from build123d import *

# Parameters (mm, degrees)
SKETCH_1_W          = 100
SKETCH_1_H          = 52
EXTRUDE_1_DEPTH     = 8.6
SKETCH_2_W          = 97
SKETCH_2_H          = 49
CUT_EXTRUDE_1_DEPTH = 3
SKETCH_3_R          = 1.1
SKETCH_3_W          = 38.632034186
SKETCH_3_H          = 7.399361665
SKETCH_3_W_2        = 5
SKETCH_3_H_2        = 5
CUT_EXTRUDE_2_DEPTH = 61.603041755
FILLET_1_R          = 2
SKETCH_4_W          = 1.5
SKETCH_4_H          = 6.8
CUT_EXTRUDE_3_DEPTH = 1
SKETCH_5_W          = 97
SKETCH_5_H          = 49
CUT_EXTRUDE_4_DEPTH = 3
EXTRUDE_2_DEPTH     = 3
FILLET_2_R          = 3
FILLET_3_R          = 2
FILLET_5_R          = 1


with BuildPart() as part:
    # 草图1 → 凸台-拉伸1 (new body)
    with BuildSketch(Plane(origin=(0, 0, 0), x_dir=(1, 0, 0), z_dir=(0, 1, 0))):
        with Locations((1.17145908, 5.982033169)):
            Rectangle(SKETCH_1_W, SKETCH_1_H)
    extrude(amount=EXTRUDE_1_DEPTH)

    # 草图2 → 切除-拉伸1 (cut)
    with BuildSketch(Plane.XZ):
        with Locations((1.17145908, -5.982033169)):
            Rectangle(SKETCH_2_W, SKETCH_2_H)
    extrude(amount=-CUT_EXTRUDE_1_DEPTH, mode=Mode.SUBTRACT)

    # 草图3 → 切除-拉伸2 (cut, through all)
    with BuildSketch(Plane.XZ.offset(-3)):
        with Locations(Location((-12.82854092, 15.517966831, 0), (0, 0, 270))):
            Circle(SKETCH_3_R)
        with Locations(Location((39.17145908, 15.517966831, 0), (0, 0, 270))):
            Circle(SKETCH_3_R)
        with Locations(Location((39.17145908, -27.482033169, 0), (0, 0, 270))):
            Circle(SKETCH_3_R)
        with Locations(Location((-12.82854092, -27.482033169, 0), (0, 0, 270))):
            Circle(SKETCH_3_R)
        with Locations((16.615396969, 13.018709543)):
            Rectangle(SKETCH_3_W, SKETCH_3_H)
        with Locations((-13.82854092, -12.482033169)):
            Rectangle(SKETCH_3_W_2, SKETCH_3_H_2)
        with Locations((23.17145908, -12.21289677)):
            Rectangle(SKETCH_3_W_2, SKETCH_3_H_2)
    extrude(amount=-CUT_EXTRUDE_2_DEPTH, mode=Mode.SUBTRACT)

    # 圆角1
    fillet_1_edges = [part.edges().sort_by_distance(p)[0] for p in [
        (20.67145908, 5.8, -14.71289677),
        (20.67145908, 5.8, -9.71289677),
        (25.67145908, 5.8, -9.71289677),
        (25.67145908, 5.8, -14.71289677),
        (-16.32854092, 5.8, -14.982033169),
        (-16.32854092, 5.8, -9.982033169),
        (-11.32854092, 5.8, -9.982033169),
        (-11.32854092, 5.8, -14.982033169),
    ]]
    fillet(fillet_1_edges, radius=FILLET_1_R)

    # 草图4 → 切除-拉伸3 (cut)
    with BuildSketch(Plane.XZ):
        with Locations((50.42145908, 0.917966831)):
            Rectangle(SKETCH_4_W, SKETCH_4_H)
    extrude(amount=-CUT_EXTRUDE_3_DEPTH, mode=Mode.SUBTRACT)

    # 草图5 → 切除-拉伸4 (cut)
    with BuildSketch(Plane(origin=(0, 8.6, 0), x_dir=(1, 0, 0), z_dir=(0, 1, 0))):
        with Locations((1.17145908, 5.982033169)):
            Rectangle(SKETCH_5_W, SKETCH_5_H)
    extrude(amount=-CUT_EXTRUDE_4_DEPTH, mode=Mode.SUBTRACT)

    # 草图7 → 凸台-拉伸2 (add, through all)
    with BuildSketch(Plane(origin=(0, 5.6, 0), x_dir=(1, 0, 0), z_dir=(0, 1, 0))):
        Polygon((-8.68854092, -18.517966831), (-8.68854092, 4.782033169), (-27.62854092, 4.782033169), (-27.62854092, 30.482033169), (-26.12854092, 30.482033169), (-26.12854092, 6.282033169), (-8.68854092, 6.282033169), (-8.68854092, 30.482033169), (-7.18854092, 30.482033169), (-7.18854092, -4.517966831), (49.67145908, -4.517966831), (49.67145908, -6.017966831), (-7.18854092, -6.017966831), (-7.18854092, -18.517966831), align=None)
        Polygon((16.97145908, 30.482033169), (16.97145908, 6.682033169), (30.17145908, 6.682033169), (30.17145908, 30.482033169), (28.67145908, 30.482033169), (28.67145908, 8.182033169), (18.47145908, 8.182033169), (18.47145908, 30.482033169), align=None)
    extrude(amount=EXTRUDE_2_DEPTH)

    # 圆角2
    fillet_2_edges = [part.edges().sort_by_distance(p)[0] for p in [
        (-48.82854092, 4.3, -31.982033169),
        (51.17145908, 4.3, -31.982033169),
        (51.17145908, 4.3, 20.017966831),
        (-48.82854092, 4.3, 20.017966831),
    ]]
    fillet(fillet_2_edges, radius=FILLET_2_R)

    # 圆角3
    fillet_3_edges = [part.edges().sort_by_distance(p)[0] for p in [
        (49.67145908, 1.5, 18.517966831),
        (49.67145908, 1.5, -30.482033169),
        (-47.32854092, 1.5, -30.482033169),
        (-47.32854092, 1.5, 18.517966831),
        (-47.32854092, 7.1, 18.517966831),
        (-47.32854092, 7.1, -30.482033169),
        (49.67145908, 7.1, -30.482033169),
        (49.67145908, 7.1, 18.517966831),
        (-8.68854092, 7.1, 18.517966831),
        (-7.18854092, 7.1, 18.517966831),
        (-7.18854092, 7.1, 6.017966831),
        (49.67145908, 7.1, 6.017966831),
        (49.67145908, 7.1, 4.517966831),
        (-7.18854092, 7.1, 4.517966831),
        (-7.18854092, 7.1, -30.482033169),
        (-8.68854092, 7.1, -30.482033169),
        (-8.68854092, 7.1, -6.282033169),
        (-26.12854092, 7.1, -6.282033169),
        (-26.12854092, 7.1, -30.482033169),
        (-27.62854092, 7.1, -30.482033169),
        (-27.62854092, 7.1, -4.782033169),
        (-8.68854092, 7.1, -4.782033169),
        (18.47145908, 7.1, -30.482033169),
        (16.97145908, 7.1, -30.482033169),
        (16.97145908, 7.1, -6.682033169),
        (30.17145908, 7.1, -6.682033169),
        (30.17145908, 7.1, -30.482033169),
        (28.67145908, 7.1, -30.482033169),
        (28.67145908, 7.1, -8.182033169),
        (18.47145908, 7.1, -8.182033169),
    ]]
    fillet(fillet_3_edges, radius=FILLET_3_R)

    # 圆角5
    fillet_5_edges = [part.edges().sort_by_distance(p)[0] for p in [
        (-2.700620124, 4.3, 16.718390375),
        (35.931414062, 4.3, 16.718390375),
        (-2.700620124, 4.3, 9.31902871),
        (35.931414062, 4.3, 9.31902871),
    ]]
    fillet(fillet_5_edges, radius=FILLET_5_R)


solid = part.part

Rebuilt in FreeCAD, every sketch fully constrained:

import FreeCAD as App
import Part
import Sketcher

V = App.Vector
Q = App.Units.Quantity


def edges_at(feature, points):
    """Names of the edges that pass closest to the given points."""
    edges = feature.Shape.Edges
    near = lambda p: min(range(len(edges)), key=lambda i: edges[i].distToShape(Part.Vertex(*p))[0])
    return sorted({f"Edge{near(p) + 1}" for p in points})

doc = App.newDocument("Part")
body = doc.addObject("PartDesign::Body", "Body")

sketch1 = doc.addObject("Sketcher::SketchObject", "Sketch")
body.addObject(sketch1)
sketch1.AttachmentSupport = (doc.XZ_Plane, [""])
sketch1.MapMode = "FlatFace"
sketch1.addGeometry(Part.LineSegment(V(-49, -32, 0), V(-49, 20, 0)), False)
sketch1.addGeometry(Part.LineSegment(V(-49, 20, 0), V(51, 20, 0)), False)
sketch1.addGeometry(Part.LineSegment(V(51, 20, 0), V(51, -32, 0)), False)
sketch1.addGeometry(Part.LineSegment(V(51, -32, 0), V(-49, -32, 0)), False)
sketch1.addConstraint(Sketcher.Constraint("Coincident", 0, 2, 1, 1))
sketch1.addConstraint(Sketcher.Constraint("Coincident", 1, 2, 2, 1))
sketch1.addConstraint(Sketcher.Constraint("Coincident", 2, 2, 3, 1))
sketch1.addConstraint(Sketcher.Constraint("Coincident", 3, 2, 0, 1))
sketch1.addConstraint(Sketcher.Constraint("Vertical", 0))
sketch1.addConstraint(Sketcher.Constraint("Horizontal", 1))
sketch1.addConstraint(Sketcher.Constraint("Vertical", 2))
sketch1.addConstraint(Sketcher.Constraint("Horizontal", 3))
sketch1.addConstraint(Sketcher.Constraint("DistanceX", 1, 1, 1, 2, Q("100 mm")))
sketch1.addConstraint(Sketcher.Constraint("DistanceY", 0, 1, 0, 2, Q("52 mm")))
sketch1.addConstraint(Sketcher.Constraint("DistanceX", 0, 2, -1, 1, Q("48.828541 mm")))
sketch1.addConstraint(Sketcher.Constraint("DistanceY", -1, 1, 0, 2, Q("20.017967 mm")))
pad1 = doc.addObject("PartDesign::Pad", "Pad")
body.addObject(pad1)
pad1.Profile = sketch1
pad1.Length = 8.6
pad1.Reversed = True

sketch2 = doc.addObject("Sketcher::SketchObject", "Sketch001")
body.addObject(sketch2)
sketch2.AttachmentSupport = (doc.XZ_Plane, [""])
sketch2.MapMode = "FlatFace"
sketch2.addGeometry(Part.LineSegment(V(-47, 19, 0), V(-47, -30, 0)), False)
sketch2.addGeometry(Part.LineSegment(V(-47, -30, 0), V(50, -30, 0)), False)
sketch2.addGeometry(Part.LineSegment(V(50, -30, 0), V(50, 19, 0)), False)
sketch2.addGeometry(Part.LineSegment(V(50, 19, 0), V(-47, 19, 0)), False)
sketch2.addConstraint(Sketcher.Constraint("Coincident", 0, 2, 1, 1))
sketch2.addConstraint(Sketcher.Constraint("Coincident", 1, 2, 2, 1))
sketch2.addConstraint(Sketcher.Constraint("Coincident", 2, 2, 3, 1))
sketch2.addConstraint(Sketcher.Constraint("Coincident", 3, 2, 0, 1))
sketch2.addConstraint(Sketcher.Constraint("Vertical", 0))
sketch2.addConstraint(Sketcher.Constraint("Horizontal", 1))
sketch2.addConstraint(Sketcher.Constraint("Vertical", 2))
sketch2.addConstraint(Sketcher.Constraint("Horizontal", 3))
sketch2.addConstraint(Sketcher.Constraint("DistanceX", 1, 1, 1, 2, Q("97 mm")))
sketch2.addConstraint(Sketcher.Constraint("DistanceY", 0, 2, 0, 1, Q("49 mm")))
sketch2.addConstraint(Sketcher.Constraint("DistanceX", 0, 2, -1, 1, Q("47.328541 mm")))
sketch2.addConstraint(Sketcher.Constraint("DistanceY", 0, 2, -1, 1, Q("30.482033 mm")))
pocket1 = doc.addObject("PartDesign::Pocket", "Pocket")
body.addObject(pocket1)
pocket1.Profile = sketch2
pocket1.Length = 3

sketch3 = doc.addObject("Sketcher::SketchObject", "Sketch002")
body.addObject(sketch3)
sketch3.AttachmentSupport = (doc.XZ_Plane, [""])
sketch3.MapMode = "FlatFace"
sketch3.AttachmentOffset = App.Placement(V(0, 0, -3), App.Rotation())
sketch3.addGeometry(Part.Circle(V(-12.8, 15.5, 0), V(0, 0, 1), 1.1), False)
sketch3.addGeometry(Part.Circle(V(39.2, 15.5, 0), V(0, 0, 1), 1.1), False)
sketch3.addGeometry(Part.Circle(V(39.2, -27.5, 0), V(0, 0, 1), 1.1), False)
sketch3.addGeometry(Part.Circle(V(-12.8, -27.5, 0), V(0, 0, 1), 1.1), False)
sketch3.addGeometry(Part.LineSegment(V(-2.7, 16.7, 0), V(-2.7, 9.3, 0)), False)
sketch3.addGeometry(Part.LineSegment(V(-2.7, 9.3, 0), V(35.9, 9.3, 0)), False)
sketch3.addGeometry(Part.LineSegment(V(35.9, 9.3, 0), V(35.9, 16.7, 0)), False)
sketch3.addGeometry(Part.LineSegment(V(35.9, 16.7, 0), V(-2.7, 16.7, 0)), False)
sketch3.addGeometry(Part.LineSegment(V(-16.3, -10, 0), V(-16.3, -15, 0)), False)
sketch3.addGeometry(Part.LineSegment(V(-16.3, -15, 0), V(-11.3, -15, 0)), False)
sketch3.addGeometry(Part.LineSegment(V(-11.3, -15, 0), V(-11.3, -10, 0)), False)
sketch3.addGeometry(Part.LineSegment(V(-11.3, -10, 0), V(-16.3, -10, 0)), False)
sketch3.addGeometry(Part.LineSegment(V(20.7, -9.7, 0), V(20.7, -14.7, 0)), False)
sketch3.addGeometry(Part.LineSegment(V(20.7, -14.7, 0), V(25.7, -14.7, 0)), False)
sketch3.addGeometry(Part.LineSegment(V(25.7, -14.7, 0), V(25.7, -9.7, 0)), False)
sketch3.addGeometry(Part.LineSegment(V(25.7, -9.7, 0), V(20.7, -9.7, 0)), False)
sketch3.addConstraint(Sketcher.Constraint("Coincident", 4, 2, 5, 1))
sketch3.addConstraint(Sketcher.Constraint("Coincident", 5, 2, 6, 1))
sketch3.addConstraint(Sketcher.Constraint("Coincident", 6, 2, 7, 1))
sketch3.addConstraint(Sketcher.Constraint("Coincident", 7, 2, 4, 1))
sketch3.addConstraint(Sketcher.Constraint("Coincident", 8, 2, 9, 1))
sketch3.addConstraint(Sketcher.Constraint("Coincident", 9, 2, 10, 1))
sketch3.addConstraint(Sketcher.Constraint("Coincident", 10, 2, 11, 1))
sketch3.addConstraint(Sketcher.Constraint("Coincident", 11, 2, 8, 1))
sketch3.addConstraint(Sketcher.Constraint("Coincident", 12, 2, 13, 1))
sketch3.addConstraint(Sketcher.Constraint("Coincident", 13, 2, 14, 1))
sketch3.addConstraint(Sketcher.Constraint("Coincident", 14, 2, 15, 1))
sketch3.addConstraint(Sketcher.Constraint("Coincident", 15, 2, 12, 1))
sketch3.addConstraint(Sketcher.Constraint("Vertical", 4))
sketch3.addConstraint(Sketcher.Constraint("Horizontal", 5))
sketch3.addConstraint(Sketcher.Constraint("Vertical", 6))
sketch3.addConstraint(Sketcher.Constraint("Horizontal", 7))
sketch3.addConstraint(Sketcher.Constraint("Vertical", 8))
sketch3.addConstraint(Sketcher.Constraint("Horizontal", 9))
sketch3.addConstraint(Sketcher.Constraint("Vertical", 10))
sketch3.addConstraint(Sketcher.Constraint("Horizontal", 11))
sketch3.addConstraint(Sketcher.Constraint("Vertical", 12))
sketch3.addConstraint(Sketcher.Constraint("Horizontal", 13))
sketch3.addConstraint(Sketcher.Constraint("Vertical", 14))
sketch3.addConstraint(Sketcher.Constraint("Horizontal", 15))
sketch3.addConstraint(Sketcher.Constraint("Equal", 0, 1))
sketch3.addConstraint(Sketcher.Constraint("Equal", 1, 2))
sketch3.addConstraint(Sketcher.Constraint("Equal", 2, 3))
sketch3.addConstraint(Sketcher.Constraint("Horizontal", 0, 3, 1, 3))
sketch3.addConstraint(Sketcher.Constraint("Horizontal", 2, 3, 3, 3))
sketch3.addConstraint(Sketcher.Constraint("Vertical", 1, 3, 2, 3))
sketch3.addConstraint(Sketcher.Constraint("Vertical", 0, 3, 3, 3))
sketch3.addConstraint(Sketcher.Constraint("Equal", 11, 13))
sketch3.addConstraint(Sketcher.Constraint("Equal", 15, 8))
sketch3.addConstraint(Sketcher.Constraint("Equal", 10, 12))
sketch3.addConstraint(Sketcher.Constraint("Diameter", 0, Q("2.2 mm")))
sketch3.addConstraint(Sketcher.Constraint("DistanceX", 9, 1, 9, 2, Q("5 mm")))
sketch3.addConstraint(Sketcher.Constraint("DistanceX", 0, 3, 1, 3, Q("52 mm")))
sketch3.addConstraint(Sketcher.Constraint("DistanceY", 2, 3, 1, 3, Q("43 mm")))
sketch3.addConstraint(Sketcher.Constraint("DistanceX", 9, 2, 12, 2, Q("32 mm")))
sketch3.addConstraint(Sketcher.Constraint("DistanceX", 8, 2, 3, 3, Q("3.5 mm")))
sketch3.addConstraint(Sketcher.Constraint("DistanceY", 3, 3, 8, 2, Q("12.5 mm")))
sketch3.addConstraint(Sketcher.Constraint("DistanceY", 4, 2, 4, 1, Q("7.399362 mm")))
sketch3.addConstraint(Sketcher.Constraint("DistanceX", 5, 1, 5, 2, Q("38.632034 mm")))
sketch3.addConstraint(Sketcher.Constraint("DistanceX", 0, 3, -1, 1, Q("12.828541 mm")))
sketch3.addConstraint(Sketcher.Constraint("DistanceX", 4, 2, -1, 1, Q("2.70062 mm")))
sketch3.addConstraint(Sketcher.Constraint("DistanceY", -1, 1, 4, 2, Q("9.319029 mm")))
sketch3.addConstraint(Sketcher.Constraint("DistanceY", 4, 2, 0, 3, Q("6.198938 mm")))
sketch3.addConstraint(Sketcher.Constraint("DistanceY", 12, 2, -1, 1, Q("14.712897 mm")))
pocket2 = doc.addObject("PartDesign::Pocket", "Pocket001")
body.addObject(pocket2)
pocket2.Profile = sketch3
pocket2.Type = "ThroughAll"
doc.recompute()

fillet = doc.addObject("PartDesign::Fillet", "Fillet")
body.addObject(fillet)
fillet.Base = (pocket2, edges_at(pocket2, [
    (20.671, 5.8, -14.713),
    (20.671, 5.8, -9.713),
    (25.671, 5.8, -9.713),
    (25.671, 5.8, -14.713),
    (-16.329, 5.8, -14.982),
    (-16.329, 5.8, -9.982),
    (-11.329, 5.8, -9.982),
    (-11.329, 5.8, -14.982),
]))
fillet.Radius = 2

sketch4 = doc.addObject("Sketcher::SketchObject", "Sketch003")
body.addObject(sketch4)
sketch4.AttachmentSupport = (doc.XZ_Plane, [""])
sketch4.MapMode = "FlatFace"
sketch4.addGeometry(Part.LineSegment(V(49.7, 4.3, 0), V(49.7, -2.5, 0)), False)
sketch4.addGeometry(Part.LineSegment(V(49.7, -2.5, 0), V(51.2, -2.5, 0)), False)
sketch4.addGeometry(Part.LineSegment(V(51.2, -2.5, 0), V(51.2, 4.3, 0)), False)
sketch4.addGeometry(Part.LineSegment(V(51.2, 4.3, 0), V(49.7, 4.3, 0)), False)
sketch4.addConstraint(Sketcher.Constraint("Coincident", 0, 2, 1, 1))
sketch4.addConstraint(Sketcher.Constraint("Coincident", 1, 2, 2, 1))
sketch4.addConstraint(Sketcher.Constraint("Coincident", 2, 2, 3, 1))
sketch4.addConstraint(Sketcher.Constraint("Coincident", 3, 2, 0, 1))
sketch4.addConstraint(Sketcher.Constraint("Vertical", 0))
sketch4.addConstraint(Sketcher.Constraint("Horizontal", 1))
sketch4.addConstraint(Sketcher.Constraint("Vertical", 2))
sketch4.addConstraint(Sketcher.Constraint("Horizontal", 3))
sketch4.addConstraint(Sketcher.Constraint("DistanceX", 1, 1, 1, 2, Q("1.5 mm")))
sketch4.addConstraint(Sketcher.Constraint("DistanceY", 0, 2, 0, 1, Q("6.8 mm")))
sketch4.addConstraint(Sketcher.Constraint("DistanceX", -1, 1, 0, 2, Q("49.671459 mm")))
sketch4.addConstraint(Sketcher.Constraint("DistanceY", 0, 2, -1, 1, Q("2.482033 mm")))
pocket3 = doc.addObject("PartDesign::Pocket", "Pocket002")
body.addObject(pocket3)
pocket3.Profile = sketch4
pocket3.Length = 1

sketch5 = doc.addObject("Sketcher::SketchObject", "Sketch004")
body.addObject(sketch5)
sketch5.AttachmentSupport = (doc.XZ_Plane, [""])
sketch5.MapMode = "FlatFace"
sketch5.AttachmentOffset = App.Placement(V(0, 0, -8.6), App.Rotation())
sketch5.addGeometry(Part.LineSegment(V(-47, -30, 0), V(-47, 19, 0)), False)
sketch5.addGeometry(Part.LineSegment(V(-47, 19, 0), V(50, 19, 0)), False)
sketch5.addGeometry(Part.LineSegment(V(50, 19, 0), V(50, -30, 0)), False)
sketch5.addGeometry(Part.LineSegment(V(50, -30, 0), V(-47, -30, 0)), False)
sketch5.addConstraint(Sketcher.Constraint("Coincident", 0, 2, 1, 1))
sketch5.addConstraint(Sketcher.Constraint("Coincident", 1, 2, 2, 1))
sketch5.addConstraint(Sketcher.Constraint("Coincident", 2, 2, 3, 1))
sketch5.addConstraint(Sketcher.Constraint("Coincident", 3, 2, 0, 1))
sketch5.addConstraint(Sketcher.Constraint("Vertical", 0))
sketch5.addConstraint(Sketcher.Constraint("Horizontal", 1))
sketch5.addConstraint(Sketcher.Constraint("Vertical", 2))
sketch5.addConstraint(Sketcher.Constraint("Horizontal", 3))
sketch5.addConstraint(Sketcher.Constraint("DistanceX", 1, 1, 1, 2, Q("97 mm")))
sketch5.addConstraint(Sketcher.Constraint("DistanceY", 0, 1, 0, 2, Q("49 mm")))
sketch5.addConstraint(Sketcher.Constraint("DistanceX", 0, 2, -1, 1, Q("47.328541 mm")))
sketch5.addConstraint(Sketcher.Constraint("DistanceY", -1, 1, 0, 2, Q("18.517967 mm")))
pocket4 = doc.addObject("PartDesign::Pocket", "Pocket003")
body.addObject(pocket4)
pocket4.Profile = sketch5
pocket4.Length = 3
pocket4.Reversed = True

sketch6 = doc.addObject("Sketcher::SketchObject", "Sketch005")
body.addObject(sketch6)
sketch6.AttachmentSupport = (doc.XZ_Plane, [""])
sketch6.MapMode = "FlatFace"
sketch6.AttachmentOffset = App.Placement(V(0, 0, -5.6), App.Rotation())
sketch6.addGeometry(Part.LineSegment(V(-8.7, -4.8, 0), V(-8.7, 18.5, 0)), False)
sketch6.addGeometry(Part.LineSegment(V(-8.7, 18.5, 0), V(-7.2, 18.5, 0)), False)
sketch6.addGeometry(Part.LineSegment(V(-7.2, 18.5, 0), V(-7.2, 6, 0)), False)
sketch6.addGeometry(Part.LineSegment(V(-7.2, 6, 0), V(49.7, 6, 0)), False)
sketch6.addGeometry(Part.LineSegment(V(49.7, 6, 0), V(49.7, 4.5, 0)), False)
sketch6.addGeometry(Part.LineSegment(V(49.7, 4.5, 0), V(-7.2, 4.5, 0)), False)
sketch6.addGeometry(Part.LineSegment(V(-7.2, 4.5, 0), V(-7.2, -30.5, 0)), False)
sketch6.addGeometry(Part.LineSegment(V(-7.2, -30.5, 0), V(-8.7, -30.5, 0)), False)
sketch6.addGeometry(Part.LineSegment(V(-8.7, -30.5, 0), V(-8.7, -6.3, 0)), False)
sketch6.addGeometry(Part.LineSegment(V(-8.7, -6.3, 0), V(-26.1, -6.3, 0)), False)
sketch6.addGeometry(Part.LineSegment(V(-26.1, -6.3, 0), V(-26.1, -30.5, 0)), False)
sketch6.addGeometry(Part.LineSegment(V(-26.1, -30.5, 0), V(-27.6, -30.5, 0)), False)
sketch6.addGeometry(Part.LineSegment(V(-27.6, -30.5, 0), V(-27.6, -4.8, 0)), False)
sketch6.addGeometry(Part.LineSegment(V(-27.6, -4.8, 0), V(-8.7, -4.8, 0)), False)
sketch6.addGeometry(Part.LineSegment(V(17, -30.5, 0), V(17, -6.7, 0)), False)
sketch6.addGeometry(Part.LineSegment(V(17, -6.7, 0), V(30.2, -6.7, 0)), False)
sketch6.addGeometry(Part.LineSegment(V(30.2, -6.7, 0), V(30.2, -30.5, 0)), False)
sketch6.addGeometry(Part.LineSegment(V(30.2, -30.5, 0), V(28.7, -30.5, 0)), False)
sketch6.addGeometry(Part.LineSegment(V(28.7, -30.5, 0), V(28.7, -8.2, 0)), False)
sketch6.addGeometry(Part.LineSegment(V(28.7, -8.2, 0), V(18.5, -8.2, 0)), False)
sketch6.addGeometry(Part.LineSegment(V(18.5, -8.2, 0), V(18.5, -30.5, 0)), False)
sketch6.addGeometry(Part.LineSegment(V(18.5, -30.5, 0), V(17, -30.5, 0)), False)
sketch6.addConstraint(Sketcher.Constraint("Coincident", 0, 2, 1, 1))
sketch6.addConstraint(Sketcher.Constraint("Coincident", 1, 2, 2, 1))
sketch6.addConstraint(Sketcher.Constraint("Coincident", 2, 2, 3, 1))
sketch6.addConstraint(Sketcher.Constraint("Coincident", 3, 2, 4, 1))
sketch6.addConstraint(Sketcher.Constraint("Coincident", 4, 2, 5, 1))
sketch6.addConstraint(Sketcher.Constraint("Coincident", 5, 2, 6, 1))
sketch6.addConstraint(Sketcher.Constraint("Coincident", 6, 2, 7, 1))
sketch6.addConstraint(Sketcher.Constraint("Coincident", 7, 2, 8, 1))
sketch6.addConstraint(Sketcher.Constraint("Coincident", 8, 2, 9, 1))
sketch6.addConstraint(Sketcher.Constraint("Coincident", 9, 2, 10, 1))
sketch6.addConstraint(Sketcher.Constraint("Coincident", 10, 2, 11, 1))
sketch6.addConstraint(Sketcher.Constraint("Coincident", 11, 2, 12, 1))
sketch6.addConstraint(Sketcher.Constraint("Coincident", 12, 2, 13, 1))
sketch6.addConstraint(Sketcher.Constraint("Coincident", 13, 2, 0, 1))
sketch6.addConstraint(Sketcher.Constraint("Coincident", 14, 2, 15, 1))
sketch6.addConstraint(Sketcher.Constraint("Coincident", 15, 2, 16, 1))
sketch6.addConstraint(Sketcher.Constraint("Coincident", 16, 2, 17, 1))
sketch6.addConstraint(Sketcher.Constraint("Coincident", 17, 2, 18, 1))
sketch6.addConstraint(Sketcher.Constraint("Coincident", 18, 2, 19, 1))
sketch6.addConstraint(Sketcher.Constraint("Coincident", 19, 2, 20, 1))
sketch6.addConstraint(Sketcher.Constraint("Coincident", 20, 2, 21, 1))
sketch6.addConstraint(Sketcher.Constraint("Coincident", 21, 2, 14, 1))
sketch6.addConstraint(Sketcher.Constraint("Vertical", 0))
sketch6.addConstraint(Sketcher.Constraint("Horizontal", 1))
sketch6.addConstraint(Sketcher.Constraint("Vertical", 2))
sketch6.addConstraint(Sketcher.Constraint("Horizontal", 3))
sketch6.addConstraint(Sketcher.Constraint("Vertical", 4))
sketch6.addConstraint(Sketcher.Constraint("Horizontal", 5))
sketch6.addConstraint(Sketcher.Constraint("Vertical", 6))
sketch6.addConstraint(Sketcher.Constraint("Horizontal", 7))
sketch6.addConstraint(Sketcher.Constraint("Vertical", 8))
sketch6.addConstraint(Sketcher.Constraint("Horizontal", 9))
sketch6.addConstraint(Sketcher.Constraint("Vertical", 10))
sketch6.addConstraint(Sketcher.Constraint("Horizontal", 11))
sketch6.addConstraint(Sketcher.Constraint("Vertical", 12))
sketch6.addConstraint(Sketcher.Constraint("Horizontal", 13))
sketch6.addConstraint(Sketcher.Constraint("Vertical", 14))
sketch6.addConstraint(Sketcher.Constraint("Horizontal", 15))
sketch6.addConstraint(Sketcher.Constraint("Vertical", 16))
sketch6.addConstraint(Sketcher.Constraint("Horizontal", 17))
sketch6.addConstraint(Sketcher.Constraint("Vertical", 18))
sketch6.addConstraint(Sketcher.Constraint("Horizontal", 19))
sketch6.addConstraint(Sketcher.Constraint("Vertical", 20))
sketch6.addConstraint(Sketcher.Constraint("Horizontal", 21))
sketch6.addConstraint(Sketcher.Constraint("Horizontal", 7, 2, 10, 2))
sketch6.addConstraint(Sketcher.Constraint("Horizontal", 11, 2, 16, 2))
sketch6.addConstraint(Sketcher.Constraint("Horizontal", 17, 2, 20, 2))
sketch6.addConstraint(Sketcher.Constraint("Vertical", 2, 2, 5, 2))
sketch6.addConstraint(Sketcher.Constraint("Vertical", 0, 2, 7, 2))
sketch6.addConstraint(Sketcher.Constraint("Equal", 7, 11))
sketch6.addConstraint(Sketcher.Constraint("Equal", 11, 17))
sketch6.addConstraint(Sketcher.Constraint("Equal", 17, 21))
sketch6.addConstraint(Sketcher.Constraint("Equal", 21, 4))
sketch6.addConstraint(Sketcher.Constraint("DistanceY", 6, 2, 6, 1, Q("35 mm")))
sketch6.addConstraint(Sketcher.Constraint("DistanceX", 1, 1, 1, 2, Q("1.5 mm")))
sketch6.addConstraint(Sketcher.Constraint("DistanceX", 15, 1, 15, 2, Q("13.2 mm")))
sketch6.addConstraint(Sketcher.Constraint("DistanceY", 0, 1, 0, 2, Q("23.3 mm")))
sketch6.addConstraint(Sketcher.Constraint("DistanceY", 2, 2, 2, 1, Q("12.5 mm")))
sketch6.addConstraint(Sketcher.Constraint("DistanceY", 8, 1, 8, 2, Q("24.2 mm")))
sketch6.addConstraint(Sketcher.Constraint("DistanceY", 14, 1, 14, 2, Q("23.8 mm")))
sketch6.addConstraint(Sketcher.Constraint("DistanceY", 18, 1, 18, 2, Q("22.3 mm")))
sketch6.addConstraint(Sketcher.Constraint("DistanceX", 18, 2, 4, 2, Q("21 mm")))
sketch6.addConstraint(Sketcher.Constraint("DistanceX", 3, 1, 3, 2, Q("56.86 mm")))
sketch6.addConstraint(Sketcher.Constraint("DistanceX", 9, 2, 9, 1, Q("17.44 mm")))
sketch6.addConstraint(Sketcher.Constraint("DistanceX", 0, 2, -1, 1, Q("8.688541 mm")))
sketch6.addConstraint(Sketcher.Constraint("DistanceY", -1, 1, 0, 2, Q("18.517967 mm")))
pad2 = doc.addObject("PartDesign::Pad", "Pad001")
body.addObject(pad2)
pad2.Profile = sketch6
pad2.Length = 3
pad2.Reversed = True
doc.recompute()

fillet2 = doc.addObject("PartDesign::Fillet", "Fillet001")
body.addObject(fillet2)
fillet2.Base = (pad2, edges_at(pad2, [
    (-48.829, 4.3, -31.982),
    (51.171, 4.3, -31.982),
    (51.171, 4.3, 20.018),
    (-48.829, 4.3, 20.018),
]))
fillet2.Radius = 3
doc.recompute()

fillet3 = doc.addObject("PartDesign::Fillet", "Fillet002")
body.addObject(fillet3)
fillet3.Base = (fillet2, edges_at(fillet2, [
    (49.671, 1.5, 18.518),
    (49.671, 1.5, -30.482),
    (-47.329, 1.5, -30.482),
    (-47.329, 1.5, 18.518),
    (-47.329, 7.1, 18.518),
    (-47.329, 7.1, -30.482),
    (49.671, 7.1, -30.482),
    (49.671, 7.1, 18.518),
    (-8.689, 7.1, 18.518),
    (-7.189, 7.1, 18.518),
    (-7.189, 7.1, 6.018),
    (49.671, 7.1, 6.018),
    (49.671, 7.1, 4.518),
    (-7.189, 7.1, 4.518),
    (-7.189, 7.1, -30.482),
    (-8.689, 7.1, -30.482),
    (-8.689, 7.1, -6.282),
    (-26.129, 7.1, -6.282),
    (-26.129, 7.1, -30.482),
    (-27.629, 7.1, -30.482),
    (-27.629, 7.1, -4.782),
    (-8.689, 7.1, -4.782),
    (18.471, 7.1, -30.482),
    (16.971, 7.1, -30.482),
    (16.971, 7.1, -6.682),
    (30.171, 7.1, -6.682),
    (30.171, 7.1, -30.482),
    (28.671, 7.1, -30.482),
    (28.671, 7.1, -8.182),
    (18.471, 7.1, -8.182),
]))
fillet3.Radius = 2
doc.recompute()

fillet4 = doc.addObject("PartDesign::Fillet", "Fillet003")
body.addObject(fillet4)
fillet4.Base = (fillet3, edges_at(fillet3, [
    (-2.701, 4.3, 16.718),
    (35.931, 4.3, 16.718),
    (-2.701, 4.3, 9.319),
    (35.931, 4.3, 9.319),
]))
fillet4.Radius = 1

doc.recompute()
